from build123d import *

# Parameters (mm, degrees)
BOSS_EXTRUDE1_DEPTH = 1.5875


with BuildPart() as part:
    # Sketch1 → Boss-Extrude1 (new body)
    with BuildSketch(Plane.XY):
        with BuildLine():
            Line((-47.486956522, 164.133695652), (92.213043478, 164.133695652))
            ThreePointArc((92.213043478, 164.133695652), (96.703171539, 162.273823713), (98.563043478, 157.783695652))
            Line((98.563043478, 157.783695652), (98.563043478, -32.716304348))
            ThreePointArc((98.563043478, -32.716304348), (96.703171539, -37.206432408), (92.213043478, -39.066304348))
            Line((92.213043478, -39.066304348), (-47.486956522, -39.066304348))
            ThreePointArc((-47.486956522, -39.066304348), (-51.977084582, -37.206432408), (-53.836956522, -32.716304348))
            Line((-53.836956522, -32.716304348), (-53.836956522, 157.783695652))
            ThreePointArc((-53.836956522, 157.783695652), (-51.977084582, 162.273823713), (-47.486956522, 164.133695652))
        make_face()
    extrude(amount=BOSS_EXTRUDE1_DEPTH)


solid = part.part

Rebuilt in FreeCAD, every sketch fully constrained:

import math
import FreeCAD as App
import Part
import Sketcher
from FreeCAD import Vector
Q = App.Units.Quantity

doc = App.newDocument("Part")
params = doc.addObject("Spreadsheet::Sheet", "Params")
for row, (alias, value) in enumerate([
    ("sketch1_radius", "0.25 in"),
    ("sketch1_width", "5.5 in"),
    ("sketch1_height", "7.5 in"),
    ("pad1_length", "0.0625 in"),
], start=1):
    params.set(f"A{row}", alias)
    params.set(f"B{row}", "=" + value)
    params.setAlias(f"B{row}", alias)

body = doc.addObject("PartDesign::Body", "Body")

sketch1 = body.newObject("Sketcher::SketchObject", "Sketch")
sketch1.AttachmentSupport = (doc.getObject("XY_Plane"), [""])
sketch1.MapMode = "FlatFace"
sketch1.addGeometry([
    Part.LineSegment(Vector(92, 164, 0), Vector(-47, 164, 0)),
    Part.ArcOfCircle(Part.Circle(Vector(-47, 158, 0), Vector(0, 0, 1), 6), math.radians(90), math.radians(180)),
    Part.LineSegment(Vector(-54, 158, 0), Vector(-54, -33, 0)),
    Part.ArcOfCircle(Part.Circle(Vector(-47, -33, 0), Vector(0, 0, 1), 6), math.radians(-180), math.radians(-90)),
    Part.LineSegment(Vector(-47, -39, 0), Vector(92, -39, 0)),
    Part.ArcOfCircle(Part.Circle(Vector(92, -33, 0), Vector(0, 0, 1), 6), math.radians(-90), math.radians(0)),
    Part.LineSegment(Vector(99, -33, 0), Vector(99, 158, 0)),
    Part.ArcOfCircle(Part.Circle(Vector(92, 158, 0), Vector(0, 0, 1), 6), math.radians(0), math.radians(90)),
], False)
sketch1.addConstraint([
    Sketcher.Constraint("Tangent", 0, 2, 1, 1),
    Sketcher.Constraint("Tangent", 1, 2, 2, 1),
    Sketcher.Constraint("Tangent", 2, 2, 3, 1),
    Sketcher.Constraint("Tangent", 3, 2, 4, 1),
    Sketcher.Constraint("Tangent", 4, 2, 5, 1),
    Sketcher.Constraint("Tangent", 5, 2, 6, 1),
    Sketcher.Constraint("Tangent", 6, 2, 7, 1),
    Sketcher.Constraint("Tangent", 7, 2, 0, 1),
    Sketcher.Constraint("Horizontal", 0),
    Sketcher.Constraint("Vertical", 2),
    Sketcher.Constraint("Horizontal", 4),
    Sketcher.Constraint("Vertical", 6),
    Sketcher.Constraint("Equal", 1, 3),
    Sketcher.Constraint("Equal", 3, 5),
    Sketcher.Constraint("Equal", 5, 7),
    Sketcher.Constraint("Radius", 1, Q("0.25 in")),
    Sketcher.Constraint("DistanceX", 0, 2, 0, 1, Q("5.5 in")),
    Sketcher.Constraint("DistanceY", 2, 2, 2, 1, Q("7.5 in")),
    Sketcher.Constraint("DistanceX", 1, 3, -1, 1, Q("47.486957 mm")),
    Sketcher.Constraint("DistanceY", -1, 1, 1, 3, Q("157.783696 mm")),
])
sketch1.setExpression("Constraints[15]", "Params.sketch1_radius")
sketch1.setExpression("Constraints[16]", "Params.sketch1_width")
sketch1.setExpression("Constraints[17]", "Params.sketch1_height")
pad1 = body.newObject("PartDesign::Pad", "Pad")
pad1.Profile = sketch1
pad1.setExpression("Length", "Params.pad1_length")

doc.recompute()
